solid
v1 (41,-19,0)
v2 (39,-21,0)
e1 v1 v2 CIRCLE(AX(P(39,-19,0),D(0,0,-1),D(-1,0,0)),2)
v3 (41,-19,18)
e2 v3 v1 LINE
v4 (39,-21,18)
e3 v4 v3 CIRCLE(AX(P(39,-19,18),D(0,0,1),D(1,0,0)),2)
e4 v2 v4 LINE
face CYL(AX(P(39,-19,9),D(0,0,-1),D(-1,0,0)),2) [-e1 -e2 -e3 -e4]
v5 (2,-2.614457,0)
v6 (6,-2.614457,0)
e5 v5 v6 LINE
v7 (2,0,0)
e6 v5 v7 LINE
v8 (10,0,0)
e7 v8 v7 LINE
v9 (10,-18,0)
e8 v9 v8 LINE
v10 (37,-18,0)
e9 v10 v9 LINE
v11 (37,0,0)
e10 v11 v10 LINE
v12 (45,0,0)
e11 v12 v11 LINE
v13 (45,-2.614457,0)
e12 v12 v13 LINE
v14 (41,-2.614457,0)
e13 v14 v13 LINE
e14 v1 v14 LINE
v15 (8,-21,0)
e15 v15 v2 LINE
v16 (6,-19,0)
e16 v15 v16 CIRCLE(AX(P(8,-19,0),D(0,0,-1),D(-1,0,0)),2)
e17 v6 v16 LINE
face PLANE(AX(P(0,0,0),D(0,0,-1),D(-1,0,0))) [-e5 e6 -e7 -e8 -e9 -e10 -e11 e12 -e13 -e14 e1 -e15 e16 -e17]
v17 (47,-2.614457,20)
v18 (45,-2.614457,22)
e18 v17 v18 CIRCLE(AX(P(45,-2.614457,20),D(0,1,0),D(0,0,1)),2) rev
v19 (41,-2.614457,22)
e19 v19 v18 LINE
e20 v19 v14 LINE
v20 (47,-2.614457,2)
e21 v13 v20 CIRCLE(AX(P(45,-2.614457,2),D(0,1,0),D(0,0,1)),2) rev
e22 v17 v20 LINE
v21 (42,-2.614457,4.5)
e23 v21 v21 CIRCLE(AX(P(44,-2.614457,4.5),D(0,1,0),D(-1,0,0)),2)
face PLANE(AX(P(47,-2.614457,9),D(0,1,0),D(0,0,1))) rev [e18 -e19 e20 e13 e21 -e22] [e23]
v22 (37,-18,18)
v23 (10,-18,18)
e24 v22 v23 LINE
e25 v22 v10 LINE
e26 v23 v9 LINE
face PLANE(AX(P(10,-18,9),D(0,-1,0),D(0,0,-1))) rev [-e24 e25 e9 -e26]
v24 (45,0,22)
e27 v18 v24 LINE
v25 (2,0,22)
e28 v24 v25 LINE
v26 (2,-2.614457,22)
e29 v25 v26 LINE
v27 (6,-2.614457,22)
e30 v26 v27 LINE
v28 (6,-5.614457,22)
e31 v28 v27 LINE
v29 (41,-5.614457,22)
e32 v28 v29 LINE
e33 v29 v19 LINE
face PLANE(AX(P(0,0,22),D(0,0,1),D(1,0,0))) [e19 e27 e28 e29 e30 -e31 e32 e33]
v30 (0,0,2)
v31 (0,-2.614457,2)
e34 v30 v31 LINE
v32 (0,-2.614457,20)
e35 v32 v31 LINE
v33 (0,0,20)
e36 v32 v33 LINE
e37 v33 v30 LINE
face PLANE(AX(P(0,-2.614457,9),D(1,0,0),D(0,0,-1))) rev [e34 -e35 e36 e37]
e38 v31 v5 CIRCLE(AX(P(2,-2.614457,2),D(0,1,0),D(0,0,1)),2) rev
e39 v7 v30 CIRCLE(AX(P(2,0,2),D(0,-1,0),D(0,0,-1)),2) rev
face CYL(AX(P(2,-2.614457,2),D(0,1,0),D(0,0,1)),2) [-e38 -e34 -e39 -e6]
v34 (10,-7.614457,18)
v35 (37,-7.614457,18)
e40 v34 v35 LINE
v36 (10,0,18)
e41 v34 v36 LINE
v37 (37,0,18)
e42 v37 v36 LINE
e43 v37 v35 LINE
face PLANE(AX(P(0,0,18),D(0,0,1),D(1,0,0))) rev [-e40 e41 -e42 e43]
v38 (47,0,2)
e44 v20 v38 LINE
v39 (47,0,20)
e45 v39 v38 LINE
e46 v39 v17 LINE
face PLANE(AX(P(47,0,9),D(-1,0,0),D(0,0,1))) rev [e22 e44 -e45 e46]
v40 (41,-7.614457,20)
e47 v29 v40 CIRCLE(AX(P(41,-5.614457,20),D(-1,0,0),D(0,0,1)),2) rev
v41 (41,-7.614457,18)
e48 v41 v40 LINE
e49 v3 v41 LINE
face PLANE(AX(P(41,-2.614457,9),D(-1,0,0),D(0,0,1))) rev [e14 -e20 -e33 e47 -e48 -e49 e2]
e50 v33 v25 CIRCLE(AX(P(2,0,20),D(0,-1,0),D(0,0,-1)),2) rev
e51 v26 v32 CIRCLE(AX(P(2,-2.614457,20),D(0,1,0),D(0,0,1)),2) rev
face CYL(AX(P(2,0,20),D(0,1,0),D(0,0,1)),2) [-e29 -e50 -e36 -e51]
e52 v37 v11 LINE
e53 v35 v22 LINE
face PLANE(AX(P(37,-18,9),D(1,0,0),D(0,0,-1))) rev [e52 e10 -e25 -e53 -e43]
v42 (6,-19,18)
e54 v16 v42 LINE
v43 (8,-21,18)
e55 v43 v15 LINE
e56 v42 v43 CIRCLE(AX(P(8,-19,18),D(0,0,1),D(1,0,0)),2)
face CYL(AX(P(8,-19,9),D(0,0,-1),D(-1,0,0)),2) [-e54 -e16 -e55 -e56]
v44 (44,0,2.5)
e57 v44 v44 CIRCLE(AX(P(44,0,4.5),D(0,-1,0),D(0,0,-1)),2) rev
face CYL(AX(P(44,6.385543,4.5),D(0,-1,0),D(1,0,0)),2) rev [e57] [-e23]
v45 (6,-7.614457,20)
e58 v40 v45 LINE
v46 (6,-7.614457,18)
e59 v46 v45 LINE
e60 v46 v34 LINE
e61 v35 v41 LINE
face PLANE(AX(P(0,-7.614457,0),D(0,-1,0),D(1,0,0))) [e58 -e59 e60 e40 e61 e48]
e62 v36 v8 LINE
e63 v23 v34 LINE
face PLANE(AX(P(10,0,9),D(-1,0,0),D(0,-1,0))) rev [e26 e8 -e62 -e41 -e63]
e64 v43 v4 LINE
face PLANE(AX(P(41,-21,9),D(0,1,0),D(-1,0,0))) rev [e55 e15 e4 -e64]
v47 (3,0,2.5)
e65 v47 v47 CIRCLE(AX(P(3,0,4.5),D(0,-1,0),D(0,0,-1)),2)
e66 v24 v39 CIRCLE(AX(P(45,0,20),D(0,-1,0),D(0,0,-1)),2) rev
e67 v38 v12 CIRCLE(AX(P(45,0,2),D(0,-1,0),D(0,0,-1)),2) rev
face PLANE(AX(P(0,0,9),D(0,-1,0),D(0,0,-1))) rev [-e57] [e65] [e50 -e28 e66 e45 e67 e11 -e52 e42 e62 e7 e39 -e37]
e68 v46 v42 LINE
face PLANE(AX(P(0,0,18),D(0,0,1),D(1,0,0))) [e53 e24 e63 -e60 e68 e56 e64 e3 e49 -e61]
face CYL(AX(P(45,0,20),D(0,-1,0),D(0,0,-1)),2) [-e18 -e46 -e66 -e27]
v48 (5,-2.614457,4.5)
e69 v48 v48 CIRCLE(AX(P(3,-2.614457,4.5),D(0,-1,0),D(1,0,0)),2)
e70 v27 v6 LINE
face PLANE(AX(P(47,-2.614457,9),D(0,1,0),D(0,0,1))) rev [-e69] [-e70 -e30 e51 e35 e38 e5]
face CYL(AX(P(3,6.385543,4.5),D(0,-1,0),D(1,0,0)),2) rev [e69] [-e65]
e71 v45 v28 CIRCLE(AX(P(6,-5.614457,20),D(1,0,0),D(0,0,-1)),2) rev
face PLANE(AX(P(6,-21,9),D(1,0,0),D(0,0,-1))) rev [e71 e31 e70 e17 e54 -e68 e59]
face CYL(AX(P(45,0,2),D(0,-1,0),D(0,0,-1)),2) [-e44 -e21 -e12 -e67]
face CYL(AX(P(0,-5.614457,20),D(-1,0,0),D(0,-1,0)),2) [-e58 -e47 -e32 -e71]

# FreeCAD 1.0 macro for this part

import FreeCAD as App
import Part
import Sketcher
Q = App.Units.Quantity


def edges_at(feature, points):
    """Names of the edges that pass closest to the given points."""
    edges = feature.Shape.Edges
    near = lambda p: min(range(len(edges)), key=lambda i: edges[i].distToShape(Part.Vertex(*p))[0])
    return sorted({f"Edge{near(p) + 1}" for p in points})


def add_polygon(sketch, points):
    """Adds a closed chain of lines whose ends are joined by coincident constraints."""
    first, n = sketch.GeometryCount, len(points)
    for a, b in zip(points, points[1:] + points[:1]):
        sketch.addGeometry(Part.LineSegment(App.Vector(*a, 0), App.Vector(*b, 0)), False)
    for i in range(n):
        sketch.addConstraint(Sketcher.Constraint("Coincident", first + i, 2, first + (i + 1) % n, 1))

doc = App.newDocument("Part")
body = doc.addObject("PartDesign::Body", "Body")

sketch1 = body.newObject("Sketcher::SketchObject", "Sketch")
sketch1.AttachmentSupport = (doc.getObject("XY_Plane"), [""])
sketch1.MapMode = "FlatFace"
add_polygon(sketch1, [(10, 0), (0, 0), (0, -2.6), (6, -2.6), (6, -21), (41, -21), (41, -2.6), (47, -2.6), (47, 0), (37, 0), (37, -18), (10, -18)])
sketch1.addConstraint([
    Sketcher.Constraint("Horizontal", 0),
    Sketcher.Constraint("Vertical", 1),
    Sketcher.Constraint("Horizontal", 2),
    Sketcher.Constraint("Vertical", 3),
    Sketcher.Constraint("Horizontal", 4),
    Sketcher.Constraint("Vertical", 5),
    Sketcher.Constraint("Horizontal", 6),
    Sketcher.Constraint("Vertical", 7),
    Sketcher.Constraint("Horizontal", 8),
    Sketcher.Constraint("Vertical", 9),
    Sketcher.Constraint("Horizontal", 10),
    Sketcher.Constraint("Vertical", 11),
    Sketcher.Constraint("Coincident", 0, 2, -1, 1),
    Sketcher.Constraint("PointOnObject", 7, 2, -1),
    Sketcher.Constraint("Horizontal", 2, 2, 5, 2),
    Sketcher.Constraint("Equal", 2, 6),
    Sketcher.Constraint("Equal", 0, 8),
    Sketcher.Constraint("DistanceX", 0, 2, 0, 1, Q("10 mm")),
    Sketcher.Constraint("DistanceX", 2, 1, 2, 2, Q("6 mm")),
    Sketcher.Constraint("DistanceX", 4, 1, 4, 2, Q("35 mm")),
    Sketcher.Constraint("DistanceY", 9, 2, 9, 1, Q("18 mm")),
    Sketcher.Constraint("DistanceY", 3, 2, -1, 1, Q("21 mm")),
    Sketcher.Constraint("DistanceY", 1, 2, 1, 1, Q("2.614457 mm")),
])
pad1 = body.newObject("PartDesign::Pad", "Pad")
pad1.Profile = sketch1
pad1.Length = 9

sketch2 = body.newObject("Sketcher::SketchObject", "Sketch001")
sketch2.AttachmentSupport = (doc.getObject("XZ_Plane"), [""])
sketch2.MapMode = "FlatFace"
sketch2.AttachmentOffset = App.Placement(App.Vector(0, 0, 2.614457), App.Rotation())
sketch2.addGeometry(Part.Circle(App.Vector(3, 4.5, 0), App.Vector(0, 0, 1), 2), False)
sketch2.addConstraint([
    Sketcher.Constraint("Diameter", 0, Q("4 mm")),
    Sketcher.Constraint("DistanceX", -1, 1, 0, 3, Q("3 mm")),
    Sketcher.Constraint("DistanceY", -1, 1, 0, 3, Q("4.5 mm")),
])
pocket1 = body.newObject("PartDesign::Pocket", "Pocket")
pocket1.Profile = sketch2
pocket1.Length = 9
doc.recompute()

datumplane = body.newObject("PartDesign::Plane", "DatumPlane")
datumplane.AttachmentSupport = (doc.getObject("YZ_Plane"), [""])
datumplane.MapMode = "FlatFace"
datumplane.AttachmentOffset = App.Placement(App.Vector(0, 0, 23.5), App.Rotation())
mirrored = body.newObject("PartDesign::Mirrored", "Mirrored")
mirrored.Originals = [pocket1]
mirrored.MirrorPlane = (datumplane, [""])
body.Tip = mirrored

sketch3 = body.newObject("Sketcher::SketchObject", "Sketch002")
sketch3.AttachmentSupport = (doc.getObject("XY_Plane"), [""])
sketch3.MapMode = "FlatFace"
sketch3.AttachmentOffset = App.Placement(App.Vector(0, 0, 9), App.Rotation())
add_polygon(sketch3, [(0, 0), (0, -2.6), (6, -2.6), (6, -21), (41, -21), (41, -2.6), (47, -2.6), (47, 0), (37, 0), (37, -18), (10, -18), (10, 0)])
sketch3.addConstraint([
    Sketcher.Constraint("Vertical", 0),
    Sketcher.Constraint("Horizontal", 1),
    Sketcher.Constraint("Vertical", 2),
    Sketcher.Constraint("Horizontal", 3),
    Sketcher.Constraint("Vertical", 4),
    Sketcher.Constraint("Horizontal", 5),
    Sketcher.Constraint("Vertical", 6),
    Sketcher.Constraint("Horizontal", 7),
    Sketcher.Constraint("Vertical", 8),
    Sketcher.Constraint("Horizontal", 9),
    Sketcher.Constraint("Vertical", 10),
    Sketcher.Constraint("Horizontal", 11),
    Sketcher.Constraint("Coincident", 11, 2, -1, 1),
    Sketcher.Constraint("PointOnObject", 6, 2, -1),
    Sketcher.Constraint("Horizontal", 1, 2, 4, 2),
    Sketcher.Constraint("Equal", 1, 5),
    Sketcher.Constraint("Equal", 7, 11),
    Sketcher.Constraint("DistanceX", 1, 1, 1, 2, Q("6 mm")),
    Sketcher.Constraint("DistanceX", 3, 1, 3, 2, Q("35 mm")),
    Sketcher.Constraint("DistanceX", 7, 2, 7, 1, Q("10 mm")),
    Sketcher.Constraint("DistanceY", 8, 2, 8, 1, Q("18 mm")),
    Sketcher.Constraint("DistanceY", 2, 2, -1, 1, Q("21 mm")),
    Sketcher.Constraint("DistanceY", 0, 2, 0, 1, Q("2.614457 mm")),
])
pad2 = body.newObject("PartDesign::Pad", "Pad001")
pad2.Profile = sketch3
pad2.Length = 9

sketch4 = body.newObject("Sketcher::SketchObject", "Sketch003")
sketch4.AttachmentSupport = (doc.getObject("XY_Plane"), [""])
sketch4.MapMode = "FlatFace"
sketch4.AttachmentOffset = App.Placement(App.Vector(0, 0, 18), App.Rotation())
add_polygon(sketch4, [(0, 0), (0, -2.6), (47, -2.6), (47, 0)])
sketch4.addConstraint([
    Sketcher.Constraint("Vertical", 0),
    Sketcher.Constraint("Horizontal", 1),
    Sketcher.Constraint("Vertical", 2),
    Sketcher.Constraint("Horizontal", 3),
    Sketcher.Constraint("Coincident", 3, 2, -1, 1),
    Sketcher.Constraint("DistanceX", 1, 1, 1, 2, Q("47 mm")),
    Sketcher.Constraint("DistanceY", 0, 2, 0, 1, Q("2.614457 mm")),
])
pad3 = body.newObject("PartDesign::Pad", "Pad002")
pad3.Profile = sketch4
pad3.Length = 4
doc.recompute()

fillet = body.newObject("PartDesign::Fillet", "Fillet")
fillet.Base = (pad3, edges_at(pad3, [(0, -1.307, 22), (47, -1.307, 22)]))
fillet.Radius = 2
doc.recompute()

fillet2 = body.newObject("PartDesign::Fillet", "Fillet001")
fillet2.Base = (fillet, edges_at(fillet, [
    (47, -1.307, 0),
    (0, -1.307, 0),
    (41, -21, 9),
    (6, -21, 9),
]))
fillet2.Radius = 2

sketch5 = body.newObject("Sketcher::SketchObject", "Sketch004")
sketch5.AttachmentSupport = (doc.getObject("XZ_Plane"), [""])
sketch5.MapMode = "FlatFace"
sketch5.AttachmentOffset = App.Placement(App.Vector(0, 0, 2.614457), App.Rotation())
add_polygon(sketch5, [(6, 22), (6, 18), (41, 18), (41, 22)])
sketch5.addConstraint([
    Sketcher.Constraint("Vertical", 0),
    Sketcher.Constraint("Horizontal", 1),
    Sketcher.Constraint("Vertical", 2),
    Sketcher.Constraint("Horizontal", 3),
    Sketcher.Constraint("DistanceX", 1, 1, 1, 2, Q("35 mm")),
    Sketcher.Constraint("DistanceY", 0, 2, 0, 1, Q("4 mm")),
    Sketcher.Constraint("DistanceX", -1, 1, 0, 2, Q("6 mm")),
    Sketcher.Constraint("DistanceY", -1, 1, 0, 2, Q("18 mm")),
])
pad4 = body.newObject("PartDesign::Pad", "Pad003")
pad4.Profile = sketch5
pad4.Length = 5
doc.recompute()

fillet3 = body.newObject("PartDesign::Fillet", "Fillet002")
fillet3.Base = (pad4, edges_at(pad4, [(23.5, -7.614, 22)]))
fillet3.Radius = 2

doc.recompute()
